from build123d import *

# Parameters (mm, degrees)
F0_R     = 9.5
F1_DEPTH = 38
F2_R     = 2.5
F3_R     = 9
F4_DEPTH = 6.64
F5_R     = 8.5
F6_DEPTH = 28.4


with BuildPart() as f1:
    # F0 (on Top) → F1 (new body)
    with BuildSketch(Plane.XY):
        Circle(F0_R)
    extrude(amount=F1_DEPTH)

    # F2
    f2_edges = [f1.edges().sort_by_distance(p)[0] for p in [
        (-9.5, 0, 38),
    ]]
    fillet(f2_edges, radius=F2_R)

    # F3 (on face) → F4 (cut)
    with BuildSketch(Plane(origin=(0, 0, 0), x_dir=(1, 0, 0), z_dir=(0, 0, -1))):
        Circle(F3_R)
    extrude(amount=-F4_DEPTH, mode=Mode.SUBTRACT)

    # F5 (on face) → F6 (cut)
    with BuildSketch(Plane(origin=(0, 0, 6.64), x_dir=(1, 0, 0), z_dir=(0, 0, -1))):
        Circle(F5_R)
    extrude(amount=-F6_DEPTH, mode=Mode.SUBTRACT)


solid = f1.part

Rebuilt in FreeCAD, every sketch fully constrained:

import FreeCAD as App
import Part
import Sketcher
Q = App.Units.Quantity


def edges_at(feature, points):
    """Names of the edges that pass closest to the given points."""
    edges = feature.Shape.Edges
    near = lambda p: min(range(len(edges)), key=lambda i: edges[i].distToShape(Part.Vertex(*p))[0])
    return sorted({f"Edge{near(p) + 1}" for p in points})

doc = App.newDocument("Part")
body = doc.addObject("PartDesign::Body", "Body")

# Sketch on XY plane
sketch1 = body.newObject("Sketcher::SketchObject", "Sketch")
sketch1.AttachmentSupport = (doc.getObject("XY_Plane"), [""])
sketch1.MapMode = "FlatFace"
sketch1.addGeometry(Part.Circle(App.Vector(0, 0, 0), App.Vector(0, 0, 1), 10), False)
sketch1.addConstraint([
    Sketcher.Constraint("Coincident", 0, 3, -1, 1),
    Sketcher.Constraint("Diameter", 0, Q("19 mm")),
])
pad1 = body.newObject("PartDesign::Pad", "Pad")
pad1.Profile = sketch1
pad1.Length = 38
doc.recompute()

fillet = body.newObject("PartDesign::Fillet", "Fillet")
fillet.Base = (pad1, edges_at(pad1, [(-9.5, 0, 38)]))
fillet.Radius = 2.5

# Sketch on XY plane
sketch2 = body.newObject("Sketcher::SketchObject", "Sketch001")
sketch2.AttachmentSupport = (doc.getObject("XY_Plane"), [""])
sketch2.MapMode = "FlatFace"
sketch2.addGeometry(Part.Circle(App.Vector(0, 0, 0), App.Vector(0, 0, 1), 9), False)
sketch2.addConstraint([
    Sketcher.Constraint("Coincident", 0, 3, -1, 1),
    Sketcher.Constraint("Diameter", 0, Q("18 mm")),
])
pocket1 = body.newObject("PartDesign::Pocket", "Pocket")
pocket1.Profile = sketch2
pocket1.Length = 6.64
pocket1.Reversed = True

# Sketch on XY plane
sketch3 = body.newObject("Sketcher::SketchObject", "Sketch002")
sketch3.AttachmentSupport = (doc.getObject("XY_Plane"), [""])
sketch3.MapMode = "FlatFace"
sketch3.AttachmentOffset = App.Placement(App.Vector(0, 0, 6.64), App.Rotation())
sketch3.addGeometry(Part.Circle(App.Vector(0, 0, 0), App.Vector(0, 0, 1), 8), False)
sketch3.addConstraint([
    Sketcher.Constraint("Coincident", 0, 3, -1, 1),
    Sketcher.Constraint("Diameter", 0, Q("17 mm")),
])
pocket2 = body.newObject("PartDesign::Pocket", "Pocket001")
pocket2.Profile = sketch3
pocket2.Length = 28.4
pocket2.Reversed = True

doc.recompute()
